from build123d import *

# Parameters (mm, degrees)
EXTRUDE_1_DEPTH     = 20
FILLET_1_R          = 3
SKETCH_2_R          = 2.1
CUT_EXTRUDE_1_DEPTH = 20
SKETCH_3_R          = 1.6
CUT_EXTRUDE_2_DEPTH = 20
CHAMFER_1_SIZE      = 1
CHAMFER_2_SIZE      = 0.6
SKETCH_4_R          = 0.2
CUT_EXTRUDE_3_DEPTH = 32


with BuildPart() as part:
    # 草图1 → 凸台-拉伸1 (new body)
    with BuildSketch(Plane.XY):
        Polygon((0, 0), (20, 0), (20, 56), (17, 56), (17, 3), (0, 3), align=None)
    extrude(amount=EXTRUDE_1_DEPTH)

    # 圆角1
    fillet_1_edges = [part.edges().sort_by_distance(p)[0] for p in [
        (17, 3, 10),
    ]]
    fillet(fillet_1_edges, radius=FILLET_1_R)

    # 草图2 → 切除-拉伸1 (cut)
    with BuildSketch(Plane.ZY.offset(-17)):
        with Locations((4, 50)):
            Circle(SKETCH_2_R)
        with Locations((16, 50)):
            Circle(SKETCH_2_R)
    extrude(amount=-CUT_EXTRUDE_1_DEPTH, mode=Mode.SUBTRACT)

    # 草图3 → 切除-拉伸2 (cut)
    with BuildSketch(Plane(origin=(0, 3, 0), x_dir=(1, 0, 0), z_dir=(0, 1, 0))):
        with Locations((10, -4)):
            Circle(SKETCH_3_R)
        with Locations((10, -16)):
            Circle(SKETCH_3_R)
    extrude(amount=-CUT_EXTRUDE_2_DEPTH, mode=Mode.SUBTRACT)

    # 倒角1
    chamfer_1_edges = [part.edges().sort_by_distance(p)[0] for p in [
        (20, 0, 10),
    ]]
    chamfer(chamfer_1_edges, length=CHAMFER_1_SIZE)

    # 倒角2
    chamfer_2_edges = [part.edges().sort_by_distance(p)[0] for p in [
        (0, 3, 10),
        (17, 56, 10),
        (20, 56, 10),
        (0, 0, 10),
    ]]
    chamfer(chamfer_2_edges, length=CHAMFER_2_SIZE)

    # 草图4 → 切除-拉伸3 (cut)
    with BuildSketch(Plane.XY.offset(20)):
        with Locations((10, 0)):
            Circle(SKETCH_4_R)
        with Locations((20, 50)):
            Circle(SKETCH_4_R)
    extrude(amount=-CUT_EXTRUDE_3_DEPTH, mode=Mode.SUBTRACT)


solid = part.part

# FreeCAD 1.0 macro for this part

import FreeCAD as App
import Part
import Sketcher
from FreeCAD import Vector
Q = App.Units.Quantity


def edges_at(feature, points):
    """Names of the edges that pass closest to the given points."""
    edges = feature.Shape.Edges
    near = lambda p: min(range(len(edges)), key=lambda i: edges[i].distToShape(Part.Vertex(*p))[0])
    return sorted({f"Edge{near(p) + 1}" for p in points})

doc = App.newDocument("Part")
body = doc.addObject("PartDesign::Body", "Body")

# Sketch on XY plane
sketch1 = body.newObject("Sketcher::SketchObject", "Sketch")
sketch1.AttachmentSupport = (doc.getObject("XY_Plane"), [""])
sketch1.MapMode = "FlatFace"
sketch1.addGeometry(Part.LineSegment(Vector(0, 0, 0), Vector(20, 0, 0)), False)
sketch1.addGeometry(Part.LineSegment(Vector(20, 0, 0), Vector(20, 56, 0)), False)
sketch1.addGeometry(Part.LineSegment(Vector(20, 56, 0), Vector(17, 56, 0)), False)
sketch1.addGeometry(Part.LineSegment(Vector(17, 56, 0), Vector(17, 3, 0)), False)
sketch1.addGeometry(Part.LineSegment(Vector(17, 3, 0), Vector(0, 3, 0)), False)
sketch1.addGeometry(Part.LineSegment(Vector(0, 3, 0), Vector(0, 0, 0)), False)
sketch1.addConstraint(Sketcher.Constraint("Coincident", 0, 2, 1, 1))
sketch1.addConstraint(Sketcher.Constraint("Coincident", 1, 2, 2, 1))
sketch1.addConstraint(Sketcher.Constraint("Coincident", 2, 2, 3, 1))
sketch1.addConstraint(Sketcher.Constraint("Coincident", 3, 2, 4, 1))
sketch1.addConstraint(Sketcher.Constraint("Coincident", 4, 2, 5, 1))
sketch1.addConstraint(Sketcher.Constraint("Coincident", 5, 2, 0, 1))
sketch1.addConstraint(Sketcher.Constraint("Horizontal", 0))
sketch1.addConstraint(Sketcher.Constraint("Vertical", 1))
sketch1.addConstraint(Sketcher.Constraint("Horizontal", 2))
sketch1.addConstraint(Sketcher.Constraint("Vertical", 3))
sketch1.addConstraint(Sketcher.Constraint("Horizontal", 4))
sketch1.addConstraint(Sketcher.Constraint("Vertical", 5))
sketch1.addConstraint(Sketcher.Constraint("Coincident", 5, 2, -1, 1))
sketch1.addConstraint(Sketcher.Constraint("Equal", 2, 5))
sketch1.addConstraint(Sketcher.Constraint("DistanceX", 0, 1, 0, 2, Q("20 mm")))
sketch1.addConstraint(Sketcher.Constraint("DistanceX", 2, 2, 2, 1, Q("3 mm")))
sketch1.addConstraint(Sketcher.Constraint("DistanceY", 1, 1, 1, 2, Q("56 mm")))
pad1 = body.newObject("PartDesign::Pad", "Pad")
pad1.Profile = sketch1
pad1.Length = 20
doc.recompute()

fillet = body.newObject("PartDesign::Fillet", "Fillet")
fillet.Base = (pad1, edges_at(pad1, [(17, 3, 10)]))
fillet.Radius = 3

# Sketch on YZ plane
sketch2 = body.newObject("Sketcher::SketchObject", "Sketch001")
sketch2.AttachmentSupport = (doc.getObject("YZ_Plane"), [""])
sketch2.MapMode = "FlatFace"
sketch2.AttachmentOffset = App.Placement(Vector(0, 0, 17), App.Rotation())
sketch2.addGeometry(Part.Circle(Vector(50, 4, 0), Vector(0, 0, 1), 2.1), False)
sketch2.addGeometry(Part.Circle(Vector(50, 16, 0), Vector(0, 0, 1), 2.1), False)
sketch2.addConstraint(Sketcher.Constraint("Equal", 0, 1))
sketch2.addConstraint(Sketcher.Constraint("Vertical", 0, 3, 1, 3))
sketch2.addConstraint(Sketcher.Constraint("Diameter", 0, Q("4.2 mm")))
sketch2.addConstraint(Sketcher.Constraint("DistanceX", -1, 1, 0, 3, Q("50 mm")))
sketch2.addConstraint(Sketcher.Constraint("DistanceY", -1, 1, 0, 3, Q("4 mm")))
sketch2.addConstraint(Sketcher.Constraint("DistanceY", -1, 1, 1, 3, Q("16 mm")))
pocket1 = body.newObject("PartDesign::Pocket", "Pocket")
pocket1.Profile = sketch2
pocket1.Length = 20
pocket1.Reversed = True

# Sketch on XZ plane
sketch3 = body.newObject("Sketcher::SketchObject", "Sketch002")
sketch3.AttachmentSupport = (doc.getObject("XZ_Plane"), [""])
sketch3.MapMode = "FlatFace"
sketch3.AttachmentOffset = App.Placement(Vector(0, 0, -3), App.Rotation())
sketch3.addGeometry(Part.Circle(Vector(10, 4, 0), Vector(0, 0, 1), 1.6), False)
sketch3.addGeometry(Part.Circle(Vector(10, 16, 0), Vector(0, 0, 1), 1.6), False)
sketch3.addConstraint(Sketcher.Constraint("Equal", 0, 1))
sketch3.addConstraint(Sketcher.Constraint("Vertical", 0, 3, 1, 3))
sketch3.addConstraint(Sketcher.Constraint("Diameter", 0, Q("3.2 mm")))
sketch3.addConstraint(Sketcher.Constraint("DistanceX", -1, 1, 0, 3, Q("10 mm")))
sketch3.addConstraint(Sketcher.Constraint("DistanceY", -1, 1, 0, 3, Q("4 mm")))
sketch3.addConstraint(Sketcher.Constraint("DistanceY", -1, 1, 1, 3, Q("16 mm")))
pocket2 = body.newObject("PartDesign::Pocket", "Pocket001")
pocket2.Profile = sketch3
pocket2.Length = 20
pocket2.Reversed = True
doc.recompute()

chamfer = body.newObject("PartDesign::Chamfer", "Chamfer")
chamfer.Base = (pocket2, edges_at(pocket2, [(20, 0, 10)]))
chamfer.Size = 1
doc.recompute()

chamfer2 = body.newObject("PartDesign::Chamfer", "Chamfer001")
chamfer2.Base = (chamfer, edges_at(chamfer, [
    (0, 3, 10),
    (17, 56, 10),
    (20, 56, 10),
    (0, 0, 10),
]))
chamfer2.Size = 0.6

# Sketch on XY plane
sketch4 = body.newObject("Sketcher::SketchObject", "Sketch003")
sketch4.AttachmentSupport = (doc.getObject("XY_Plane"), [""])
sketch4.MapMode = "FlatFace"
sketch4.AttachmentOffset = App.Placement(Vector(0, 0, 20), App.Rotation())
sketch4.addGeometry(Part.Circle(Vector(10, 0, 0), Vector(0, 0, 1), 0.2), False)
sketch4.addGeometry(Part.Circle(Vector(20, 50, 0), Vector(0, 0, 1), 0.2), False)
sketch4.addConstraint(Sketcher.Constraint("Equal", 0, 1))
sketch4.addConstraint(Sketcher.Constraint("PointOnObject", 0, 3, -1))
sketch4.addConstraint(Sketcher.Constraint("Diameter", 0, Q("0.4 mm")))
sketch4.addConstraint(Sketcher.Constraint("DistanceX", -1, 1, 0, 3, Q("10 mm")))
sketch4.addConstraint(Sketcher.Constraint("DistanceX", -1, 1, 1, 3, Q("20 mm")))
sketch4.addConstraint(Sketcher.Constraint("DistanceY", -1, 1, 1, 3, Q("50 mm")))
pocket3 = body.newObject("PartDesign::Pocket", "Pocket002")
pocket3.Profile = sketch4
pocket3.Length = 32

doc.recompute()
